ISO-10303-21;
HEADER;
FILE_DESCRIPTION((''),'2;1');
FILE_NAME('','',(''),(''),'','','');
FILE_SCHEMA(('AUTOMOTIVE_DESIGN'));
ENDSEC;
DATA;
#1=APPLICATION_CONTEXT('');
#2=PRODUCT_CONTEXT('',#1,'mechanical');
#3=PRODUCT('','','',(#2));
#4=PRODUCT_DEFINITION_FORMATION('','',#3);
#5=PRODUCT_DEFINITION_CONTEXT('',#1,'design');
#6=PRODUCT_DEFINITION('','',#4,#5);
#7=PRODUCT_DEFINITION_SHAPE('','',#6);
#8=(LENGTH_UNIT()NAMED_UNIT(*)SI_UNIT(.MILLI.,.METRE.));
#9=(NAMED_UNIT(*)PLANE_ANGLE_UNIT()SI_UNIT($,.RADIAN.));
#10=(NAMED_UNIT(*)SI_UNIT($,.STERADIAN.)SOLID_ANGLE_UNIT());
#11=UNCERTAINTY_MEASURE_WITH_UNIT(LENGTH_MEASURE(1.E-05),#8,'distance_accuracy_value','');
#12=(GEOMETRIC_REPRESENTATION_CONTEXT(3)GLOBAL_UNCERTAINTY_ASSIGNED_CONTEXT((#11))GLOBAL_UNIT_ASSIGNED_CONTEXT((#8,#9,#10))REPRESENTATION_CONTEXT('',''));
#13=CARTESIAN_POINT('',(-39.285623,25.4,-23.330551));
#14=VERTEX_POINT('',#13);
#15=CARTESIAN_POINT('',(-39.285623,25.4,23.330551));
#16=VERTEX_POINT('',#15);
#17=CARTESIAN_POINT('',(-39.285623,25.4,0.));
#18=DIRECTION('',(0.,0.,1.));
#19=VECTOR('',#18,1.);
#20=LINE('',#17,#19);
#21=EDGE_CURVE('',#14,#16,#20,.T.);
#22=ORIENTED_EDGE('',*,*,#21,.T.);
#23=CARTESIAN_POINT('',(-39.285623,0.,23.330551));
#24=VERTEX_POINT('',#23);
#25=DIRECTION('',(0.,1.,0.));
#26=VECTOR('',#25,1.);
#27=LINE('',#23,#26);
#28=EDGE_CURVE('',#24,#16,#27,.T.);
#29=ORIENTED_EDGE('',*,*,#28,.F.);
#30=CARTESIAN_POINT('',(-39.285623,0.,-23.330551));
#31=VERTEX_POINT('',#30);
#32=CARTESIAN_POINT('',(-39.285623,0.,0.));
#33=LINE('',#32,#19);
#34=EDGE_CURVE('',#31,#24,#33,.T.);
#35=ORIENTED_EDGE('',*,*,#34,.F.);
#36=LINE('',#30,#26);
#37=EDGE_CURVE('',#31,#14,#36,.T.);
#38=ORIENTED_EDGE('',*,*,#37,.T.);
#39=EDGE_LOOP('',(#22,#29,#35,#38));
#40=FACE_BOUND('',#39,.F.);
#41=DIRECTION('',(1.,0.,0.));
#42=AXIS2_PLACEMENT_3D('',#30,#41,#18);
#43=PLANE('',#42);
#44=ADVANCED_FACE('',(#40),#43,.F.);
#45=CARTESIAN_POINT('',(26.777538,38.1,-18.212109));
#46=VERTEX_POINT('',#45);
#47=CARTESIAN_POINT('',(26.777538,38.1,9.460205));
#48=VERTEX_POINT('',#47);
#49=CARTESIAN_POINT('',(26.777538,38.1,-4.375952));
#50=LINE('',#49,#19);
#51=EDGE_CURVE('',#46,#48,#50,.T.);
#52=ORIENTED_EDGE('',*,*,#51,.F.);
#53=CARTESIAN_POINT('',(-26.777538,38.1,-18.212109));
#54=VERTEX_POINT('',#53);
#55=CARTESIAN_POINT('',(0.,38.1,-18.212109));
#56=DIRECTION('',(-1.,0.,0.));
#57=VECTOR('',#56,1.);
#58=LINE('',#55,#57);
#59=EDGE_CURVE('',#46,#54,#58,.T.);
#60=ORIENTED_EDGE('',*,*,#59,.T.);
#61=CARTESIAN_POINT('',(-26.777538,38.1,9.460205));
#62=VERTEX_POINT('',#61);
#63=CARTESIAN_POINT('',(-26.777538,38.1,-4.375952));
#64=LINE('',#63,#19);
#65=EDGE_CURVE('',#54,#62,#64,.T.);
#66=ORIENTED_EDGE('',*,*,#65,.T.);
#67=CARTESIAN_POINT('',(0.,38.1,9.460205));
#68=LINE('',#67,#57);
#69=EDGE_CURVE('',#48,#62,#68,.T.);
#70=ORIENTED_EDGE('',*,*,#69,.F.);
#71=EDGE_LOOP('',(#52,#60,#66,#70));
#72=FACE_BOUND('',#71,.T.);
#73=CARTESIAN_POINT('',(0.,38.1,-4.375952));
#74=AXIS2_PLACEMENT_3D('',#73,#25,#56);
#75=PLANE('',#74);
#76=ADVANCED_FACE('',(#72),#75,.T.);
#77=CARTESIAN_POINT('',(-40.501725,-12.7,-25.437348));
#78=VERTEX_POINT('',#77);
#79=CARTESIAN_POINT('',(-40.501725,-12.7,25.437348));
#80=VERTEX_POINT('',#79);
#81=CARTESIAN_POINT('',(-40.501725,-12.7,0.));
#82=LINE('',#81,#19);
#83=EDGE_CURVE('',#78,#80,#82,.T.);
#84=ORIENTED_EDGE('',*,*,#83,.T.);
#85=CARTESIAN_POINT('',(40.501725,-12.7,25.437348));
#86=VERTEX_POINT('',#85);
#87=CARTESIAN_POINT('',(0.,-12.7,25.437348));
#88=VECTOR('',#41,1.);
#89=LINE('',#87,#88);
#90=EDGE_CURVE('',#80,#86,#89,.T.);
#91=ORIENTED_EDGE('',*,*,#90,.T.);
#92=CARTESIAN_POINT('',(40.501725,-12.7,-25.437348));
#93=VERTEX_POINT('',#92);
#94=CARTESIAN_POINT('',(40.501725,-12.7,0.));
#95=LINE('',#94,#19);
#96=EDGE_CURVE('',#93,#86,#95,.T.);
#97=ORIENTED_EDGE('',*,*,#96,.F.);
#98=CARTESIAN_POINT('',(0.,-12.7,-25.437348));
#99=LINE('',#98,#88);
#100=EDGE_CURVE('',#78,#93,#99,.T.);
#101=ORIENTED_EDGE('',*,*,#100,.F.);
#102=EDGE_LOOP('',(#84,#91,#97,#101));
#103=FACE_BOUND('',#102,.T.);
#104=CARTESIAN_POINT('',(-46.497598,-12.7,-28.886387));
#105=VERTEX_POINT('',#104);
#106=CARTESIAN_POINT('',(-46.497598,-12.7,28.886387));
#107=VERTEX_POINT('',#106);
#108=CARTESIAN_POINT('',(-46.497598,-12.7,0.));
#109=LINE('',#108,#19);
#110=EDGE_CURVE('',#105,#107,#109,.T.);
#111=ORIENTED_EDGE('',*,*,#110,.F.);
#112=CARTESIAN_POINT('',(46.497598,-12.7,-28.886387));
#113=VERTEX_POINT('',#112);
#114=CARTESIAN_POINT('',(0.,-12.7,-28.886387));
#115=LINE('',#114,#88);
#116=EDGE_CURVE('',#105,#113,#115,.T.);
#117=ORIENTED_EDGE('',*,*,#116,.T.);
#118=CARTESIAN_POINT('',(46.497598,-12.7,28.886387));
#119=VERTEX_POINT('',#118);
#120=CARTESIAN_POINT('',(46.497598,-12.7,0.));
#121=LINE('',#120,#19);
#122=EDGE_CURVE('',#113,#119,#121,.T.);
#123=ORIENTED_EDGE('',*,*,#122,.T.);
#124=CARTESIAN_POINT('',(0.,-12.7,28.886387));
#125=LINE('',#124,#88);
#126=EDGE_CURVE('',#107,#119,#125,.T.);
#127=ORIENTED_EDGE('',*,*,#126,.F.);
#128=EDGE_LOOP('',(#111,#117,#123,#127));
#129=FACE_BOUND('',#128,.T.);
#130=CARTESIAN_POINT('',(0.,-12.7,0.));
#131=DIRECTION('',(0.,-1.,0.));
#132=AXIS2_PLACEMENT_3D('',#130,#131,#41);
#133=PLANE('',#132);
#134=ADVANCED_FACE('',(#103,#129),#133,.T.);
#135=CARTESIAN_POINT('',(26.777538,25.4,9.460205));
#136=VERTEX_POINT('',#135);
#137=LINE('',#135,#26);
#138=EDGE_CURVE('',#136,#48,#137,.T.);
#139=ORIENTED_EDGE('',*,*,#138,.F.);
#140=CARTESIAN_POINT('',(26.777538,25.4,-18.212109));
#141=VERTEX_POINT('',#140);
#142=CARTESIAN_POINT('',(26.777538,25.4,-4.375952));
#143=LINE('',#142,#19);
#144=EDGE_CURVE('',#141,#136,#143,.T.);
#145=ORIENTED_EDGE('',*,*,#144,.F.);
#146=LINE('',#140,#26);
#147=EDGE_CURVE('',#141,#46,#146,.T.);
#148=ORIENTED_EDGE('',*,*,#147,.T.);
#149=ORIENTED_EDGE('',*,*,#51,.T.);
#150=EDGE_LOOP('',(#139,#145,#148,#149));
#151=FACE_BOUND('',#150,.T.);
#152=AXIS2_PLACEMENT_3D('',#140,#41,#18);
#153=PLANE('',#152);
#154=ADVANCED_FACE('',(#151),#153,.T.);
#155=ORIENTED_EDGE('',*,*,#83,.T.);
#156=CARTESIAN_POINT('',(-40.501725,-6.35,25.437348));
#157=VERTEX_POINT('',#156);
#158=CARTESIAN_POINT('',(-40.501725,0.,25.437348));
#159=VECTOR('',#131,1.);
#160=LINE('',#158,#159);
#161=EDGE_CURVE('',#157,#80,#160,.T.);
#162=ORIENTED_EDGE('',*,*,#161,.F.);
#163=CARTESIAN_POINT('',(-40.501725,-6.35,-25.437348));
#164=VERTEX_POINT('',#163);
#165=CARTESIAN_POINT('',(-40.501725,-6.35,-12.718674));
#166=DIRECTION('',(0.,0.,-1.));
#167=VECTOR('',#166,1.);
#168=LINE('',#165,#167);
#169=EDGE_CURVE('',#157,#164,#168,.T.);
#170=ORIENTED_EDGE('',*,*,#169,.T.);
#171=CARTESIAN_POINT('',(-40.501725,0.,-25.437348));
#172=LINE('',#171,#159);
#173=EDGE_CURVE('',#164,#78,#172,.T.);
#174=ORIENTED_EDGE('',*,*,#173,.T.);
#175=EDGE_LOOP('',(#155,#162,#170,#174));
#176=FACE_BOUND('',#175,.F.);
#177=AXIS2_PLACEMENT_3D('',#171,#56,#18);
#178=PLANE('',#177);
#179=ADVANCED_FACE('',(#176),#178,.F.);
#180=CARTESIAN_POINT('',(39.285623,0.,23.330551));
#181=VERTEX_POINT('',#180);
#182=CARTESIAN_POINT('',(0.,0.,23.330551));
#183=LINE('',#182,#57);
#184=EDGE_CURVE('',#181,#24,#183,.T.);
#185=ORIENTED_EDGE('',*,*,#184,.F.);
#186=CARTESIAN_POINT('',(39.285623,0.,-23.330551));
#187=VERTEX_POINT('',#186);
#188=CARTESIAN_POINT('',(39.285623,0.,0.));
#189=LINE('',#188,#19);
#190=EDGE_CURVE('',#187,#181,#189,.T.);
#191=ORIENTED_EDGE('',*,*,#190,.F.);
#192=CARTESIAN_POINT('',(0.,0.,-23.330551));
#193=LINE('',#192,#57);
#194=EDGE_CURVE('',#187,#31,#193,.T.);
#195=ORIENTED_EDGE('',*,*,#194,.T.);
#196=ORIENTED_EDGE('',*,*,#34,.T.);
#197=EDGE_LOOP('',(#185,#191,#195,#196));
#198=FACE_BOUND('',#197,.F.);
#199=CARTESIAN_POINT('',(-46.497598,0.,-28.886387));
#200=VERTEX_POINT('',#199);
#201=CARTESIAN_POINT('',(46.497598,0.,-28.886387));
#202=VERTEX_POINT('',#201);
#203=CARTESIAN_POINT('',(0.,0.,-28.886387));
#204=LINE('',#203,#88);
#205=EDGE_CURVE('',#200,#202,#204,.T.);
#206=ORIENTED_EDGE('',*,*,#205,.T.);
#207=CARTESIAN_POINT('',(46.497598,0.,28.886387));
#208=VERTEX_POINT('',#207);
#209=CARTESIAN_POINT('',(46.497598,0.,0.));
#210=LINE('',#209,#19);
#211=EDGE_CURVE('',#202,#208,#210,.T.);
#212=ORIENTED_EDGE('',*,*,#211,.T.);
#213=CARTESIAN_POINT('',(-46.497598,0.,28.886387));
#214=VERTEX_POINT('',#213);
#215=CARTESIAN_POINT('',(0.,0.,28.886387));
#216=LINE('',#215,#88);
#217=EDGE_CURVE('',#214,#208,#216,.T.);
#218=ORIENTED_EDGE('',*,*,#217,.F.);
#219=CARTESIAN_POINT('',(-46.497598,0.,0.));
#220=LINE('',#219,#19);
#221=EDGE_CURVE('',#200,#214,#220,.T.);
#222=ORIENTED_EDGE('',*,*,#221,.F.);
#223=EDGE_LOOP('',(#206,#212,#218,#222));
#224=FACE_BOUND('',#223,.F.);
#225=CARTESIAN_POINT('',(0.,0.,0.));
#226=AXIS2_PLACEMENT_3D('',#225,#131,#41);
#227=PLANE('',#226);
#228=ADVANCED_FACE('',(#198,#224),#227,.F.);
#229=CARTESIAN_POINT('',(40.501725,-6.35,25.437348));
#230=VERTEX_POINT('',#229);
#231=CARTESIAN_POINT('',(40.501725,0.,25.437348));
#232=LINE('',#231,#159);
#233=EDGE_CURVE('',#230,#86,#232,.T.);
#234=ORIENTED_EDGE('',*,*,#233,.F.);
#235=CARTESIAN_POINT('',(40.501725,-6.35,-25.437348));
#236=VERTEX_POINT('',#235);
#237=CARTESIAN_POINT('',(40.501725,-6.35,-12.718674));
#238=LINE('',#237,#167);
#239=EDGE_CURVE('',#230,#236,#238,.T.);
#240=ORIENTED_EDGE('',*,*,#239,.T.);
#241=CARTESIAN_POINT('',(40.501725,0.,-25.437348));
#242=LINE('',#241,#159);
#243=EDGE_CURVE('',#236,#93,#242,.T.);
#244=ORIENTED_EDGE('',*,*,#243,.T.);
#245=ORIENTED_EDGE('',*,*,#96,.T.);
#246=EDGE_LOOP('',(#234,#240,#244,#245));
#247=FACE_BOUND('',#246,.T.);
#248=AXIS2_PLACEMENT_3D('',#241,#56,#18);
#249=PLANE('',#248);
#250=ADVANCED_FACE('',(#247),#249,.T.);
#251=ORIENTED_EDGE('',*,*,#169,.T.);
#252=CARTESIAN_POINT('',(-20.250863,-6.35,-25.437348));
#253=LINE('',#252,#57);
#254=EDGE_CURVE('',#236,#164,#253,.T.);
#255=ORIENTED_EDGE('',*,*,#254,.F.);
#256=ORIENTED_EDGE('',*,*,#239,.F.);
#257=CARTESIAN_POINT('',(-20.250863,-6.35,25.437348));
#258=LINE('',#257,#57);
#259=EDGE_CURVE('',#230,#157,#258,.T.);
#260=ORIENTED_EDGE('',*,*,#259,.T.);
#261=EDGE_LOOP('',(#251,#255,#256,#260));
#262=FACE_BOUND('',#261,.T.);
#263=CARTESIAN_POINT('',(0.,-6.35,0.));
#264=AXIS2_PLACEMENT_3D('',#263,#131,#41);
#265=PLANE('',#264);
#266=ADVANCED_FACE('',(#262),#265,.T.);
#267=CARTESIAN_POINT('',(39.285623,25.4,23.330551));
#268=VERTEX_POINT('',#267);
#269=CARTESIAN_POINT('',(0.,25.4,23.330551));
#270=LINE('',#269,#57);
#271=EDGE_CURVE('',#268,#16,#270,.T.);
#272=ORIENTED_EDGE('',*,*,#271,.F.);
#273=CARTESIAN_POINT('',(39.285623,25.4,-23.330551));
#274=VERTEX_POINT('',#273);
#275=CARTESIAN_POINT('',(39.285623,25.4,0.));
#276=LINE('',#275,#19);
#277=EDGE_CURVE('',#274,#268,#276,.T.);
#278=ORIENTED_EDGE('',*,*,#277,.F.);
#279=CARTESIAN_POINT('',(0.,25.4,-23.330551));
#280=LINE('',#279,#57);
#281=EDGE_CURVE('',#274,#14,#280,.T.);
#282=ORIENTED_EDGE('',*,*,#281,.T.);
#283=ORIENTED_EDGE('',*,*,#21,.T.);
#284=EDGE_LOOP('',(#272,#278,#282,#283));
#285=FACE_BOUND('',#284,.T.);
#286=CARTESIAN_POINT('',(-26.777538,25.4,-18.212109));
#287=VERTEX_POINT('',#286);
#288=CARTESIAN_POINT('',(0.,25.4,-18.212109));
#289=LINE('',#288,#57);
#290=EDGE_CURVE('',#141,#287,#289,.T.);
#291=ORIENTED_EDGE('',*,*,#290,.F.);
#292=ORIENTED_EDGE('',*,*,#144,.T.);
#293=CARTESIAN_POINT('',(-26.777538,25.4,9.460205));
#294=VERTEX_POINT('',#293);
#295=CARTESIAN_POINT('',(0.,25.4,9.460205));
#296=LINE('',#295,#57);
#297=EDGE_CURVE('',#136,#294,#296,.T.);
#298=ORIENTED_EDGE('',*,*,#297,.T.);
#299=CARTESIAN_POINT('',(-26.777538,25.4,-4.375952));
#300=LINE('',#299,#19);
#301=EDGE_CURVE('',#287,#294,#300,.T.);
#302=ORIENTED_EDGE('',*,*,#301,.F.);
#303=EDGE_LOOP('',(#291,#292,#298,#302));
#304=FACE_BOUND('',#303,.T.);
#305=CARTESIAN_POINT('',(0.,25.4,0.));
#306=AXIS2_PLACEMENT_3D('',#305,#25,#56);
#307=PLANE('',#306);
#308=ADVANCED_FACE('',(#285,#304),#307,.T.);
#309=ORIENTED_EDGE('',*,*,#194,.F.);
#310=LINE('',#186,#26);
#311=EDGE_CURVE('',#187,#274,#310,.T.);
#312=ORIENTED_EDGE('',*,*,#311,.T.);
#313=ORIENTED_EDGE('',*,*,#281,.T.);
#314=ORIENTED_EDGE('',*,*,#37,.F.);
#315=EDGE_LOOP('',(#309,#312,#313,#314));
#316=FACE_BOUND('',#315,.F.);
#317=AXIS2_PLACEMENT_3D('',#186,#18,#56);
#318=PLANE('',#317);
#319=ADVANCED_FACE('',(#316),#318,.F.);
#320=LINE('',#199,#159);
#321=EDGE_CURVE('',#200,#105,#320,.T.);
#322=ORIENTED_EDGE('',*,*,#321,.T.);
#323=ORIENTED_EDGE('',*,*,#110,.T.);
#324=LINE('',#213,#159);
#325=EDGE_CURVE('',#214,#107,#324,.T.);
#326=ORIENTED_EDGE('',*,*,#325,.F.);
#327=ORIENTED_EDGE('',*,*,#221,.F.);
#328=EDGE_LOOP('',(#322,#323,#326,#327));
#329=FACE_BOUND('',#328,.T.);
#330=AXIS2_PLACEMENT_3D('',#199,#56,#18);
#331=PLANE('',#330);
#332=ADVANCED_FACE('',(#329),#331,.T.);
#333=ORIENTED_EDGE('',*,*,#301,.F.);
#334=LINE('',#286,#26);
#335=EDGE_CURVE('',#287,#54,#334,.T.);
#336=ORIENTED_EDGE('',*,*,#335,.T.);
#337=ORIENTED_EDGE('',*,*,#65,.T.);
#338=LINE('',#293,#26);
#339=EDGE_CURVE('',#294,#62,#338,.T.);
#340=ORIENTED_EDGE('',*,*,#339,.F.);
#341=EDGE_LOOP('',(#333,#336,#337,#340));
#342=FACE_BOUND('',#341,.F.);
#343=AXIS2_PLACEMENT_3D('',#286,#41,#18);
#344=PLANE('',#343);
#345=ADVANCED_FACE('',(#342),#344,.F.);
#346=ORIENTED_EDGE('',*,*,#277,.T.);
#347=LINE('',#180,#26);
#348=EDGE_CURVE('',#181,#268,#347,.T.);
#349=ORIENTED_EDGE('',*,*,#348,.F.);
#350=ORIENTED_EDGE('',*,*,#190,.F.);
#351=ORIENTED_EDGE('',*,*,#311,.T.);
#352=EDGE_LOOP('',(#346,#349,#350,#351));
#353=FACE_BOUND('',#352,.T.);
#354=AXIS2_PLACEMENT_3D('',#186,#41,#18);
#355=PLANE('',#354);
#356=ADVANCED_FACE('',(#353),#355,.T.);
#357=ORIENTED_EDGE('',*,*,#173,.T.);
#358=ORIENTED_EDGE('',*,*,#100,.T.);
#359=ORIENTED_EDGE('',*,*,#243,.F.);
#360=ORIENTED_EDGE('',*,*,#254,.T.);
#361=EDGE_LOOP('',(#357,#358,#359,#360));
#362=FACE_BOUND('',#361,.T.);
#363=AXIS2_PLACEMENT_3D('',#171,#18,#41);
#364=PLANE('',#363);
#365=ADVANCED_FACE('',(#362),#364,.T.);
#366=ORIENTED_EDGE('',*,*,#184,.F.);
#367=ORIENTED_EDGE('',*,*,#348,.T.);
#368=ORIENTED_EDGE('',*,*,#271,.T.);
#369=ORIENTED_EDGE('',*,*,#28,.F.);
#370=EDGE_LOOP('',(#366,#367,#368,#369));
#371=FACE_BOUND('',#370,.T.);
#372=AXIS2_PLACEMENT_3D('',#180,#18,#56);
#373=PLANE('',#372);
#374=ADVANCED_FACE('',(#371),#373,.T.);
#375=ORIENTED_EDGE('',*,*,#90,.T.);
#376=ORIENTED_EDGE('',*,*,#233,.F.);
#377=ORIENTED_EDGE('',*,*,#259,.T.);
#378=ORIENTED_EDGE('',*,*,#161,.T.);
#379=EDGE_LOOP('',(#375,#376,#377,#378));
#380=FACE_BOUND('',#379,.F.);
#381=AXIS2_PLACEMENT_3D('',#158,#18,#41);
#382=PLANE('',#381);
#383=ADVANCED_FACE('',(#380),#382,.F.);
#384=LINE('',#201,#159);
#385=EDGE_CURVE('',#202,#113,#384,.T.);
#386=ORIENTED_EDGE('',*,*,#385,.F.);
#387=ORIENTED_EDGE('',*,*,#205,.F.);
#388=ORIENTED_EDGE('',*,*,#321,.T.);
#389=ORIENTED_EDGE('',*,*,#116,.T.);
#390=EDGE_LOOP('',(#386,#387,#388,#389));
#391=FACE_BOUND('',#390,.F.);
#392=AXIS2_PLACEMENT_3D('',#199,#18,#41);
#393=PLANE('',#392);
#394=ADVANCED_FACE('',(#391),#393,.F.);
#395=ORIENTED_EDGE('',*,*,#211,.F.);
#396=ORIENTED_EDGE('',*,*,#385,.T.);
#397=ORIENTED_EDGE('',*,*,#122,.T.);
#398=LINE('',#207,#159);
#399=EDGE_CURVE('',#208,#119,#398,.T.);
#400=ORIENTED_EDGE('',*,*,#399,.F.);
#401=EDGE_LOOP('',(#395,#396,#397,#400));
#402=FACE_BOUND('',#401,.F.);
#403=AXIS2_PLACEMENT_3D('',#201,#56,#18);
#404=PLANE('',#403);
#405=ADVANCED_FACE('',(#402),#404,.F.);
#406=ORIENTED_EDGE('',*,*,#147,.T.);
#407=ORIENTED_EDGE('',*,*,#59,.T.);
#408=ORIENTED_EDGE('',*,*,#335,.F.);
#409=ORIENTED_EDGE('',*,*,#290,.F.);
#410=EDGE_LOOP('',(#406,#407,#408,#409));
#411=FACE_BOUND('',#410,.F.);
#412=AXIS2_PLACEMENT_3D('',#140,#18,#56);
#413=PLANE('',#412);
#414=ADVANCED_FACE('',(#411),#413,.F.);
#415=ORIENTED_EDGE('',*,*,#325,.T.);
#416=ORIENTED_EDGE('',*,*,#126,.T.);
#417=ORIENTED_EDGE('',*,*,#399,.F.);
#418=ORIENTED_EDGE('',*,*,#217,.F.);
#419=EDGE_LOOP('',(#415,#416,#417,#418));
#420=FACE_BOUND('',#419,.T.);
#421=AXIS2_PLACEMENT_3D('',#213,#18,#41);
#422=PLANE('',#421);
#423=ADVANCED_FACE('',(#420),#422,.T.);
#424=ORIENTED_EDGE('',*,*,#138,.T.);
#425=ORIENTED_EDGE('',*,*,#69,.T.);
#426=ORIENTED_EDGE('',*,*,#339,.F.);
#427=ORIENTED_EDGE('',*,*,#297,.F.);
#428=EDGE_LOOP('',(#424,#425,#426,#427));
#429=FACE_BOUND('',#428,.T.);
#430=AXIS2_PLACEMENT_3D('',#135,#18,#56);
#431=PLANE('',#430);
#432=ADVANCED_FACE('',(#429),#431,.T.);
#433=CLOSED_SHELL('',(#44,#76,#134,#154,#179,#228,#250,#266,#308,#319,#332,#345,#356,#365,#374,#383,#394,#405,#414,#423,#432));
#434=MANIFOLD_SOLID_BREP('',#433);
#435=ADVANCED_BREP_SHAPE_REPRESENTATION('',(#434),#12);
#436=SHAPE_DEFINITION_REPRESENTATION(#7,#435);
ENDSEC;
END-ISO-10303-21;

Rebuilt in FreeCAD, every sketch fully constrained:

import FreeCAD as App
import Part
import Sketcher
from FreeCAD import Vector
Q = App.Units.Quantity


def add_polygon(sketch, points):
    """Adds a closed chain of lines whose ends are joined by coincident constraints."""
    first, n = sketch.GeometryCount, len(points)
    for a, b in zip(points, points[1:] + points[:1]):
        sketch.addGeometry(Part.LineSegment(App.Vector(*a, 0), App.Vector(*b, 0)), False)
    for i in range(n):
        sketch.addConstraint(Sketcher.Constraint("Coincident", first + i, 2, first + (i + 1) % n, 1))

doc = App.newDocument("Part")
params = doc.addObject("Spreadsheet::Sheet", "Params")
for row, (alias, value) in enumerate([
    ("pad1_length", "0.25 in"),
    ("pad2_length", "0.5 in"),
    ("pad3_length", "1 in"),
    ("pad4_length", "0.5 in"),
], start=1):
    params.set(f"A{row}", alias)
    params.set(f"B{row}", "=" + value)
    params.setAlias(f"B{row}", alias)

body = doc.addObject("PartDesign::Body", "Body")

# Sketch on XZ plane
sketch1 = doc.addObject("Sketcher::SketchObject", "Sketch")
body.addObject(sketch1)
sketch1.AttachmentSupport = (doc.XZ_Plane, [""])
sketch1.MapMode = "FlatFace"
add_polygon(sketch1, [(-41, 26), (-41, -26), (41, -26), (41, 26)])  # lines 0-3
sketch1.addConstraint(Sketcher.Constraint("Vertical", 0))
sketch1.addConstraint(Sketcher.Constraint("Horizontal", 1))
sketch1.addConstraint(Sketcher.Constraint("Vertical", 2))
sketch1.addConstraint(Sketcher.Constraint("Horizontal", 3))
sketch1.addConstraint(Sketcher.Constraint("Symmetric", 0, 2, 2, 2, -1, 1))
sketch1.addConstraint(Sketcher.Constraint("DistanceY", 0, 2, 0, 1, Q("51.38012 mm")))
sketch1.addConstraint(Sketcher.Constraint("DistanceX", 1, 1, 1, 2, Q("81.626944 mm")))
pad1 = doc.addObject("PartDesign::Pad", "Pad")
body.addObject(pad1)
pad1.Profile = sketch1
pad1.setExpression("Length", "Params.pad1_length")

# Sketch on XZ plane
sketch2 = doc.addObject("Sketcher::SketchObject", "Sketch001")
body.addObject(sketch2)
sketch2.AttachmentSupport = (doc.XZ_Plane, [""])
sketch2.MapMode = "FlatFace"
add_polygon(sketch2, [(-46, 29), (-46, -29), (46, -29), (46, 29)])  # lines 0-3
add_polygon(sketch2, [(41, -25), (-41, -25), (-41, 25), (41, 25)])  # lines 4-7
sketch2.addConstraint(Sketcher.Constraint("Vertical", 0))
sketch2.addConstraint(Sketcher.Constraint("Horizontal", 1))
sketch2.addConstraint(Sketcher.Constraint("Vertical", 2))
sketch2.addConstraint(Sketcher.Constraint("Horizontal", 3))
sketch2.addConstraint(Sketcher.Constraint("Horizontal", 4))
sketch2.addConstraint(Sketcher.Constraint("Vertical", 5))
sketch2.addConstraint(Sketcher.Constraint("Horizontal", 6))
sketch2.addConstraint(Sketcher.Constraint("Vertical", 7))
sketch2.addConstraint(Sketcher.Constraint("Symmetric", 0, 2, 2, 2, -1, 1))
sketch2.addConstraint(Sketcher.Constraint("Symmetric", 4, 2, 6, 2, -1, 1))
sketch2.addConstraint(Sketcher.Constraint("DistanceX", 4, 2, 4, 1, Q("81.00345 mm")))
sketch2.addConstraint(Sketcher.Constraint("DistanceX", 0, 2, -1, 1, Q("46.497598 mm")))
sketch2.addConstraint(Sketcher.Constraint("DistanceY", 0, 2, 0, 1, Q("57.772774 mm")))
sketch2.addConstraint(Sketcher.Constraint("DistanceY", 5, 1, 5, 2, Q("50.874696 mm")))
pad2 = doc.addObject("PartDesign::Pad", "Pad001")
body.addObject(pad2)
pad2.Profile = sketch2
pad2.setExpression("Length", "Params.pad2_length")

# Sketch on XZ plane
sketch3 = doc.addObject("Sketcher::SketchObject", "Sketch002")
body.addObject(sketch3)
sketch3.AttachmentSupport = (doc.XZ_Plane, [""])
sketch3.MapMode = "FlatFace"
add_polygon(sketch3, [(39, 23), (39, -23), (-39, -23), (-39, 23)])  # lines 0-3
sketch3.addConstraint(Sketcher.Constraint("Vertical", 0))
sketch3.addConstraint(Sketcher.Constraint("Horizontal", 1))
sketch3.addConstraint(Sketcher.Constraint("Vertical", 2))
sketch3.addConstraint(Sketcher.Constraint("Horizontal", 3))
sketch3.addConstraint(Sketcher.Constraint("Symmetric", 0, 2, 2, 2, -1, 1))
sketch3.addConstraint(Sketcher.Constraint("DistanceX", 1, 2, 1, 1, Q("78.571246 mm")))
sketch3.addConstraint(Sketcher.Constraint("DistanceY", 0, 2, 0, 1, Q("46.661102 mm")))
pad3 = doc.addObject("PartDesign::Pad", "Pad002")
body.addObject(pad3)
pad3.Profile = sketch3
pad3.setExpression("Length", "Params.pad3_length")
pad3.Reversed = True

# Sketch on XZ plane
sketch4 = doc.addObject("Sketcher::SketchObject", "Sketch003")
body.addObject(sketch4)
sketch4.AttachmentSupport = (doc.XZ_Plane, [""])
sketch4.MapMode = "FlatFace"
sketch4.AttachmentOffset = App.Placement(Vector(0, 0, -1 * 25.4), App.Rotation())
add_polygon(sketch4, [(27, 9), (27, -18), (-27, -18), (-27, 9)])  # lines 0-3
sketch4.addConstraint(Sketcher.Constraint("Vertical", 0))
sketch4.addConstraint(Sketcher.Constraint("Horizontal", 1))
sketch4.addConstraint(Sketcher.Constraint("Vertical", 2))
sketch4.addConstraint(Sketcher.Constraint("Horizontal", 3))
sketch4.addConstraint(Sketcher.Constraint("DistanceX", 1, 2, 1, 1, Q("53.555076 mm")))
sketch4.addConstraint(Sketcher.Constraint("DistanceY", 0, 2, 0, 1, Q("27.672314 mm")))
sketch4.addConstraint(Sketcher.Constraint("DistanceX", -1, 1, 0, 2, Q("26.777538 mm")))
sketch4.addConstraint(Sketcher.Constraint("DistanceY", 0, 2, -1, 1, Q("18.212109 mm")))
pad4 = doc.addObject("PartDesign::Pad", "Pad003")
body.addObject(pad4)
pad4.Profile = sketch4
pad4.setExpression("Length", "Params.pad4_length")
pad4.Reversed = True

doc.recompute()
